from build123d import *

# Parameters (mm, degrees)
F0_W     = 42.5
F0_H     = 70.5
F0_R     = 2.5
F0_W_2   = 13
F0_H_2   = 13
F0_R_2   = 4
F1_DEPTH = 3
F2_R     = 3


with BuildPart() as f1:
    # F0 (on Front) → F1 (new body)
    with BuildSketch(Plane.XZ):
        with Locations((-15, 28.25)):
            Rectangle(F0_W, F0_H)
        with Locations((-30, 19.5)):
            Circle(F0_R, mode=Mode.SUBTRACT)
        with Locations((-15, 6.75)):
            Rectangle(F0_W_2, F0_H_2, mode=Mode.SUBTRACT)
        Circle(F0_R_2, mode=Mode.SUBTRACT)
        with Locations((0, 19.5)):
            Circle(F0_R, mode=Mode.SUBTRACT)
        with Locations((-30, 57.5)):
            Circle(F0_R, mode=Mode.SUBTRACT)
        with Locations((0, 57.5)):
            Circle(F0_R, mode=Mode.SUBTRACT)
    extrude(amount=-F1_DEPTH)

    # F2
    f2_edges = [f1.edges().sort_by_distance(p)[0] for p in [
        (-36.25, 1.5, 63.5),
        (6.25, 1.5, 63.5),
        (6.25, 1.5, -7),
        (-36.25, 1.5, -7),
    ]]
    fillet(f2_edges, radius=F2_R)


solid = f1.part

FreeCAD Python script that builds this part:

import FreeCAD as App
import Part
import Sketcher
from FreeCAD import Vector


def edges_at(feature, points):
    """Names of the edges that pass closest to the given points."""
    edges = feature.Shape.Edges
    near = lambda p: min(range(len(edges)), key=lambda i: edges[i].distToShape(Part.Vertex(*p))[0])
    return sorted({f"Edge{near(p) + 1}" for p in points})


def add_polygon(sketch, points):
    """Adds a closed chain of lines whose ends are joined by coincident constraints."""
    first, n = sketch.GeometryCount, len(points)
    for a, b in zip(points, points[1:] + points[:1]):
        sketch.addGeometry(Part.LineSegment(App.Vector(*a, 0), App.Vector(*b, 0)), False)
    for i in range(n):
        sketch.addConstraint(Sketcher.Constraint("Coincident", first + i, 2, first + (i + 1) % n, 1))

doc = App.newDocument("Part")
body = doc.addObject("PartDesign::Body", "Body")

# Sketch on XZ plane
sketch1 = body.newObject("Sketcher::SketchObject", "Sketch")
sketch1.AttachmentSupport = (doc.getObject("XZ_Plane"), [""])
sketch1.MapMode = "FlatFace"
add_polygon(sketch1, [(-36.2, 63.5), (-36.2, -7), (6.2, -7), (6.2, 63.5)])  # lines 0-3
add_polygon(sketch1, [(-8.5, 0.2), (-21.5, 0.2), (-21.5, 13.2), (-8.5, 13.2)])  # lines 4-7
sketch1.addGeometry(Part.Circle(Vector(-30, 19.5, 0), Vector(0, 0, 1), 2.5), False)  # 8
sketch1.addGeometry(Part.Circle(Vector(0, 0, 0), Vector(0, 0, 1), 4), False)  # 9
sketch1.addGeometry(Part.Circle(Vector(0, 19.5, 0), Vector(0, 0, 1), 2.5), False)  # 10
sketch1.addGeometry(Part.Circle(Vector(-30, 57.5, 0), Vector(0, 0, 1), 2.5), False)  # 11
sketch1.addGeometry(Part.Circle(Vector(0, 57.5, 0), Vector(0, 0, 1), 2.5), False)  # 12
sketch1.addConstraint(Sketcher.Constraint("Vertical", 0))
sketch1.addConstraint(Sketcher.Constraint("Horizontal", 1))
sketch1.addConstraint(Sketcher.Constraint("Vertical", 2))
sketch1.addConstraint(Sketcher.Constraint("Horizontal", 3))
sketch1.addConstraint(Sketcher.Constraint("Horizontal", 4))
sketch1.addConstraint(Sketcher.Constraint("Vertical", 5))
sketch1.addConstraint(Sketcher.Constraint("Horizontal", 6))
sketch1.addConstraint(Sketcher.Constraint("Vertical", 7))
sketch1.addConstraint(Sketcher.Constraint("Coincident", 9, 3, -1, 1))
sketch1.addConstraint(Sketcher.Constraint("Equal", 8, 10))
sketch1.addConstraint(Sketcher.Constraint("Equal", 10, 11))
sketch1.addConstraint(Sketcher.Constraint("Equal", 11, 12))
sketch1.addConstraint(Sketcher.Constraint("PointOnObject", 10, 3, -2))
sketch1.addConstraint(Sketcher.Constraint("PointOnObject", 12, 3, -2))
sketch1.addConstraint(Sketcher.Constraint("Horizontal", 8, 3, 10, 3))
sketch1.addConstraint(Sketcher.Constraint("Horizontal", 11, 3, 12, 3))
sketch1.addConstraint(Sketcher.Constraint("Vertical", 8, 3, 11, 3))
sketch1.addConstraint(Sketcher.Constraint("Equal", 6, 5))
sketch1.addConstraint(Sketcher.Constraint("Diameter", 8, 5.0))
sketch1.addConstraint(Sketcher.Constraint("Diameter", 9, 8.0))
sketch1.addConstraint(Sketcher.Constraint("DistanceX", 4, 2, 4, 1, 13.0))
sketch1.addConstraint(Sketcher.Constraint("DistanceX", 1, 1, 1, 2, 42.5))
sketch1.addConstraint(Sketcher.Constraint("DistanceY", 0, 2, 0, 1, 70.5))
sketch1.addConstraint(Sketcher.Constraint("DistanceX", 8, 3, -1, 1, 30.0))
sketch1.addConstraint(Sketcher.Constraint("DistanceY", 0, 2, -1, 1, 7.0))
sketch1.addConstraint(Sketcher.Constraint("DistanceY", 8, 3, 11, 3, 38.0))
sketch1.addConstraint(Sketcher.Constraint("DistanceY", 12, 3, 2, 2, 6.0))
sketch1.addConstraint(Sketcher.Constraint("DistanceX", 4, 2, -1, 1, 21.5))
sketch1.addConstraint(Sketcher.Constraint("DistanceX", 0, 2, -1, 1, 36.25))
sketch1.addConstraint(Sketcher.Constraint("DistanceY", -1, 1, 4, 2, 0.25))
pad1 = body.newObject("PartDesign::Pad", "Pad")
pad1.Profile = sketch1
pad1.Length = 3
pad1.Reversed = True
doc.recompute()

fillet = body.newObject("PartDesign::Fillet", "Fillet")
fillet.Base = (pad1, edges_at(pad1, [
    (-36.25, 1.5, 63.5),
    (6.25, 1.5, 63.5),
    (6.25, 1.5, -7),
    (-36.25, 1.5, -7),
]))
fillet.Radius = 3

doc.recompute()
